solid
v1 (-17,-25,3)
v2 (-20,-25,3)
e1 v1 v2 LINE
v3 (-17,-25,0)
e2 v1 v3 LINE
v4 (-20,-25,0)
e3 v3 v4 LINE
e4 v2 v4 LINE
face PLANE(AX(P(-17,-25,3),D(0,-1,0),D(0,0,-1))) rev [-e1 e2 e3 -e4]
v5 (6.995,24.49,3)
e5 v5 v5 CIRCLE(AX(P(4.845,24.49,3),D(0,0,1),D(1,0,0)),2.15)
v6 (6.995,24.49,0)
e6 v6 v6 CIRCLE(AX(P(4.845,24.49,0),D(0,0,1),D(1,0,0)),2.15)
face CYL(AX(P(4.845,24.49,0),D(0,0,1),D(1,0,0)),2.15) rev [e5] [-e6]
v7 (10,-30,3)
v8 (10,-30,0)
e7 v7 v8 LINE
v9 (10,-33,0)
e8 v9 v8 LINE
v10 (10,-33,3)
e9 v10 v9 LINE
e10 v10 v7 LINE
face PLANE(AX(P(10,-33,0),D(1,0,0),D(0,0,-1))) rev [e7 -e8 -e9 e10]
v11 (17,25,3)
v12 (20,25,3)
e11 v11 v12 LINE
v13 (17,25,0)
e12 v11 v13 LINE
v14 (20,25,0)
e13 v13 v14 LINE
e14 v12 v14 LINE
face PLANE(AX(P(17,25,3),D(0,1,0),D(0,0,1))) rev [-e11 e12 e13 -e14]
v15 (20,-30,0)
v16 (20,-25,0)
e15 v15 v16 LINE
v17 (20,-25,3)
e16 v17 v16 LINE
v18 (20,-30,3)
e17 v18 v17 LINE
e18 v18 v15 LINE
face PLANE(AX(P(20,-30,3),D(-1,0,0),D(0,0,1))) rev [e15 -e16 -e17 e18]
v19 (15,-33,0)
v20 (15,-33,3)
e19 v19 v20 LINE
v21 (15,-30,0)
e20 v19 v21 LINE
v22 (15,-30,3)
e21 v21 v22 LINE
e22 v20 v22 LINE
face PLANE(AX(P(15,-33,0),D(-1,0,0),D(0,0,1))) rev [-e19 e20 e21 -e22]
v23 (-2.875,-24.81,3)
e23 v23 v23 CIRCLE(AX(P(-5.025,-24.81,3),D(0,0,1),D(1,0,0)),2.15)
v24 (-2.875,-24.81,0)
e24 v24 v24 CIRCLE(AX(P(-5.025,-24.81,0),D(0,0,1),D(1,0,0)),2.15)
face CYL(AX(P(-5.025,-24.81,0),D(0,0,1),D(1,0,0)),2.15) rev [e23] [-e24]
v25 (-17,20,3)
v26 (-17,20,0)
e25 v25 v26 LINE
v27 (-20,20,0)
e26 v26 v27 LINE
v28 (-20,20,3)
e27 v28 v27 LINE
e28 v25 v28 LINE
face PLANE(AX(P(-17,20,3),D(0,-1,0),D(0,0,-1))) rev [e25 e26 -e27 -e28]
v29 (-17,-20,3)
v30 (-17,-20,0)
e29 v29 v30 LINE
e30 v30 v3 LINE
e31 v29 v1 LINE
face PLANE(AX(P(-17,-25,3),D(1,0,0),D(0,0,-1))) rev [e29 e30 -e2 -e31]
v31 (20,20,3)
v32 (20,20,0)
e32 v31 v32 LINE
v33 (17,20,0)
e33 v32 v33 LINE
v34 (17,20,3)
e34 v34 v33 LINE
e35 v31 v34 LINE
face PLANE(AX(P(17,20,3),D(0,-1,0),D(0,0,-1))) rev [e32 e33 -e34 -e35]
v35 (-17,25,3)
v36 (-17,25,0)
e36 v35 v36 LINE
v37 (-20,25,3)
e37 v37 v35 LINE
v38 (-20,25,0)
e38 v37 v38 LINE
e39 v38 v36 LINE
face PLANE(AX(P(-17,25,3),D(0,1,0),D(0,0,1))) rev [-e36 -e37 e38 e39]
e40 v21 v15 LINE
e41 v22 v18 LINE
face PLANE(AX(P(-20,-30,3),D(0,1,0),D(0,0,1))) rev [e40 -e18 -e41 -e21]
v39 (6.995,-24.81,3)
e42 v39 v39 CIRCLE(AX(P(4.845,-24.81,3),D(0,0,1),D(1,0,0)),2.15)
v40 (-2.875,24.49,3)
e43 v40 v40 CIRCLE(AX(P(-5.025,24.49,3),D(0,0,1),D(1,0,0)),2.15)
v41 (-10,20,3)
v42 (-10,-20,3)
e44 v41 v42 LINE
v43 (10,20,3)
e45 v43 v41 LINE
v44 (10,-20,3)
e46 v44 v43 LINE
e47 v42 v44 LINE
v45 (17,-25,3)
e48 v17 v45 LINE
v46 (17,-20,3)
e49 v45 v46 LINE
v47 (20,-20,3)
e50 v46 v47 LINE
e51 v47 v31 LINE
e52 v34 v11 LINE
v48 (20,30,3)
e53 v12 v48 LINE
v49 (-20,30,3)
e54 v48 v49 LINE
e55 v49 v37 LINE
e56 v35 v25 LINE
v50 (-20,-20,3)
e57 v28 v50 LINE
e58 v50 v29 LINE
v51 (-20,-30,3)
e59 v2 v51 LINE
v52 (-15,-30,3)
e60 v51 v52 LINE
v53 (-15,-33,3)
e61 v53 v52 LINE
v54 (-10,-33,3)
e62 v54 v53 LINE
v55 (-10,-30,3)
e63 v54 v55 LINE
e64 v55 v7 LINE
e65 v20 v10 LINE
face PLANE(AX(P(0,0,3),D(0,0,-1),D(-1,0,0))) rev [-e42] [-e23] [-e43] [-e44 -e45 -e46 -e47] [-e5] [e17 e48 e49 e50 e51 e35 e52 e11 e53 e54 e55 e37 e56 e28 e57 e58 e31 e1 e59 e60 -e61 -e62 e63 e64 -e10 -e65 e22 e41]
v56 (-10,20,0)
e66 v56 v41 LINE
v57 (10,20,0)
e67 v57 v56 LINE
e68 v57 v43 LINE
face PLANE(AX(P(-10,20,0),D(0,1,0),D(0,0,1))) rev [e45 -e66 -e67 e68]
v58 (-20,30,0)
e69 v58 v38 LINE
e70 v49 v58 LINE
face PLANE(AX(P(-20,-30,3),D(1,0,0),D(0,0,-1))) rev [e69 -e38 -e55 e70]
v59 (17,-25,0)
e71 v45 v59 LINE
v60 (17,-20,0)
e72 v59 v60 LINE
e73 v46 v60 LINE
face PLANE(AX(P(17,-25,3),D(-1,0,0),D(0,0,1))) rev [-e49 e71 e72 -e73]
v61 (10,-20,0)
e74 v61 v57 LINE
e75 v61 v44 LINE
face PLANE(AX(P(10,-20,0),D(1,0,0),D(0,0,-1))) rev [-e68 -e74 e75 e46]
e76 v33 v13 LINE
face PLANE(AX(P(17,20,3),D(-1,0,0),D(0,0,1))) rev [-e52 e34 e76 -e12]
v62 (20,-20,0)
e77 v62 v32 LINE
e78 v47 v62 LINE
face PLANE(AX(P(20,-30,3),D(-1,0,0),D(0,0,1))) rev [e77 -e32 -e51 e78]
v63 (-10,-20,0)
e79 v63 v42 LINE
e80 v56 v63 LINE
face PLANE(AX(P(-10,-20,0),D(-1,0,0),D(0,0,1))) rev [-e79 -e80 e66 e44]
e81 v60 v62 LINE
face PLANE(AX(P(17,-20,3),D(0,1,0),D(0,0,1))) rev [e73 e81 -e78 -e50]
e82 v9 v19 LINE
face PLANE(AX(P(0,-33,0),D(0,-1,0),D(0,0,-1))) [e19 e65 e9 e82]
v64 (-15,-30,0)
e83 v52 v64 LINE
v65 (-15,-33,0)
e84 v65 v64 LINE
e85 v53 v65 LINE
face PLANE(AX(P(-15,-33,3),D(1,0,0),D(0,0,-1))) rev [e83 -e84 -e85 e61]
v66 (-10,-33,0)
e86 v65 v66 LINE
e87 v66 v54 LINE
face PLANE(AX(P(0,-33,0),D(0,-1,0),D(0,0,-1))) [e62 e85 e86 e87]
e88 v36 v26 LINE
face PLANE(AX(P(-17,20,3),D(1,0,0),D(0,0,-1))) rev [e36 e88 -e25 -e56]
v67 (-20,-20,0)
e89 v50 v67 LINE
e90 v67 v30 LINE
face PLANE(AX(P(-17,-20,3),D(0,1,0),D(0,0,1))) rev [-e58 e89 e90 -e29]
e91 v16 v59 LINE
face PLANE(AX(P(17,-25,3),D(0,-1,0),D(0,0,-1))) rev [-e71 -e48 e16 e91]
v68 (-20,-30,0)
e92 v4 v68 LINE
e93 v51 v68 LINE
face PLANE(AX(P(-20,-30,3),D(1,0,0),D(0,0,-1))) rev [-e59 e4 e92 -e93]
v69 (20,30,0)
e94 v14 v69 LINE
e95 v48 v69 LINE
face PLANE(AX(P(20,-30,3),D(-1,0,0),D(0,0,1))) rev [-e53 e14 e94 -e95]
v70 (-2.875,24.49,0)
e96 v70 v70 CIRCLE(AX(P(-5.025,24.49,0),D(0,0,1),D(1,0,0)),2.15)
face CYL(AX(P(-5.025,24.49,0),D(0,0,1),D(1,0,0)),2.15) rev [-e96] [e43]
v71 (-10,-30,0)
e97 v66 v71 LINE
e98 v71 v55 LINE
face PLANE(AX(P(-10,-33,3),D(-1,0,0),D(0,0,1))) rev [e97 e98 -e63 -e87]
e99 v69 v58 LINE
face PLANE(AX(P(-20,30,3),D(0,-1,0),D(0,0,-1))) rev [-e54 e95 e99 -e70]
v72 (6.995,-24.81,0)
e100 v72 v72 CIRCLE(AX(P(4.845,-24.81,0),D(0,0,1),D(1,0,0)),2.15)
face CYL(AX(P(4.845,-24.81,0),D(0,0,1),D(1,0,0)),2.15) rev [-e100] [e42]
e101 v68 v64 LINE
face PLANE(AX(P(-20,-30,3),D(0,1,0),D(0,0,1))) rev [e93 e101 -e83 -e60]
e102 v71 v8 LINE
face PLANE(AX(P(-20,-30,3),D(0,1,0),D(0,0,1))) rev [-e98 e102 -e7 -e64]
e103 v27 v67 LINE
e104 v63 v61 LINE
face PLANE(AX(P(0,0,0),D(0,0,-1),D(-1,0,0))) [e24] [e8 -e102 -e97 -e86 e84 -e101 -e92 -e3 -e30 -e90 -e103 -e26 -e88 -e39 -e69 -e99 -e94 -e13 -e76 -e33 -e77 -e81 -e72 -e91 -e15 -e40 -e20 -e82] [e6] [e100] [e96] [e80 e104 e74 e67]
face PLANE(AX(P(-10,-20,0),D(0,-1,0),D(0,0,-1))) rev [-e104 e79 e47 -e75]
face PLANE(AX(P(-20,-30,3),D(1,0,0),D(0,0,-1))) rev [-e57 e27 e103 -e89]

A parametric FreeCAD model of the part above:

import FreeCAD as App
import Part
import Sketcher

V = App.Vector
Q = App.Units.Quantity

doc = App.newDocument("Part")
body = doc.addObject("PartDesign::Body", "Body")

# Sketch on XY plane
sketch1 = body.newObject("Sketcher::SketchObject", "Sketch")
sketch1.AttachmentSupport = (doc.getObject("XY_Plane"), [""])
sketch1.MapMode = "FlatFace"
sketch1.addGeometry([
    Part.LineSegment(V(-20, 30, 0), V(-20, -30, 0)),
    Part.LineSegment(V(-20, -30, 0), V(20, -30, 0)),
    Part.LineSegment(V(20, -30, 0), V(20, 30, 0)),
    Part.LineSegment(V(20, 30, 0), V(-20, 30, 0)),
], False)
sketch1.addConstraint([
    Sketcher.Constraint("Coincident", 0, 2, 1, 1),
    Sketcher.Constraint("Coincident", 1, 2, 2, 1),
    Sketcher.Constraint("Coincident", 2, 2, 3, 1),
    Sketcher.Constraint("Coincident", 3, 2, 0, 1),
    Sketcher.Constraint("Vertical", 0),
    Sketcher.Constraint("Horizontal", 1),
    Sketcher.Constraint("Vertical", 2),
    Sketcher.Constraint("Horizontal", 3),
    Sketcher.Constraint("Symmetric", 0, 2, 2, 2, -1, 1),
    Sketcher.Constraint("DistanceX", 1, 1, 1, 2, Q("40 mm")),
    Sketcher.Constraint("DistanceY", 0, 2, 0, 1, Q("60 mm")),
])
pad1 = body.newObject("PartDesign::Pad", "Pad")
pad1.Profile = sketch1
pad1.Length = 3

# Sketch on XY plane
sketch2 = body.newObject("Sketcher::SketchObject", "Sketch001")
sketch2.AttachmentSupport = (doc.getObject("XY_Plane"), [""])
sketch2.MapMode = "FlatFace"
sketch2.AttachmentOffset = App.Placement(V(0, 0, 3), App.Rotation())
sketch2.addGeometry([
    Part.Circle(V(4.8, 24.5, 0), V(0, 0, 1), 2.1),  # 0
    Part.Circle(V(-5, 24.5, 0), V(0, 0, 1), 2.1),  # 1
    Part.Circle(V(-5, -24.8, 0), V(0, 0, 1), 2.1),  # 2
    Part.Circle(V(4.8, -24.8, 0), V(0, 0, 1), 2.1),  # 3
    Part.LineSegment(V(-10, 20, 0), V(-10, -20, 0)),  # 4
    Part.LineSegment(V(-10, -20, 0), V(10, -20, 0)),  # 5
    Part.LineSegment(V(10, -20, 0), V(10, 20, 0)),  # 6
    Part.LineSegment(V(10, 20, 0), V(-10, 20, 0)),  # 7
], False)
sketch2.addConstraint([
    Sketcher.Constraint("Coincident", 4, 2, 5, 1),
    Sketcher.Constraint("Coincident", 5, 2, 6, 1),
    Sketcher.Constraint("Coincident", 6, 2, 7, 1),
    Sketcher.Constraint("Coincident", 7, 2, 4, 1),
    Sketcher.Constraint("Vertical", 4),
    Sketcher.Constraint("Horizontal", 5),
    Sketcher.Constraint("Vertical", 6),
    Sketcher.Constraint("Horizontal", 7),
    Sketcher.Constraint("Equal", 0, 1),
    Sketcher.Constraint("Equal", 1, 2),
    Sketcher.Constraint("Equal", 2, 3),
    Sketcher.Constraint("Symmetric", 4, 2, 6, 2, -1, 1),
    Sketcher.Constraint("Horizontal", 0, 3, 1, 3),
    Sketcher.Constraint("Horizontal", 2, 3, 3, 3),
    Sketcher.Constraint("Vertical", 1, 3, 2, 3),
    Sketcher.Constraint("Vertical", 0, 3, 3, 3),
    Sketcher.Constraint("Diameter", 0, Q("4.3 mm")),
    Sketcher.Constraint("DistanceX", 5, 1, 5, 2, Q("20 mm")),
    Sketcher.Constraint("DistanceY", 4, 2, 4, 1, Q("40 mm")),
    Sketcher.Constraint("DistanceY", 2, 3, 1, 3, Q("49.3 mm")),
    Sketcher.Constraint("DistanceY", -1, 1, 0, 3, Q("24.49 mm")),
    Sketcher.Constraint("DistanceX", 1, 3, 0, 3, Q("9.87 mm")),
    Sketcher.Constraint("DistanceX", -1, 1, 0, 3, Q("4.845 mm")),
])
pocket1 = body.newObject("PartDesign::Pocket", "Pocket")
pocket1.Profile = sketch2
pocket1.Length = 3

# Sketch on XZ plane
sketch3 = body.newObject("Sketcher::SketchObject", "Sketch002")
sketch3.AttachmentSupport = (doc.getObject("XZ_Plane"), [""])
sketch3.MapMode = "FlatFace"
sketch3.AttachmentOffset = App.Placement(V(0, 0, 30), App.Rotation())
sketch3.addGeometry([
    Part.LineSegment(V(10, 3, 0), V(10, 0, 0)),  # 0
    Part.LineSegment(V(10, 0, 0), V(15, 0, 0)),  # 1
    Part.LineSegment(V(15, 0, 0), V(15, 3, 0)),  # 2
    Part.LineSegment(V(15, 3, 0), V(10, 3, 0)),  # 3
    Part.LineSegment(V(-15, 3, 0), V(-15, 0, 0)),  # 4
    Part.LineSegment(V(-15, 0, 0), V(-10, 0, 0)),  # 5
    Part.LineSegment(V(-10, 0, 0), V(-10, 3, 0)),  # 6
    Part.LineSegment(V(-10, 3, 0), V(-15, 3, 0)),  # 7
], False)
sketch3.addConstraint([
    Sketcher.Constraint("Coincident", 0, 2, 1, 1),
    Sketcher.Constraint("Coincident", 1, 2, 2, 1),
    Sketcher.Constraint("Coincident", 2, 2, 3, 1),
    Sketcher.Constraint("Coincident", 3, 2, 0, 1),
    Sketcher.Constraint("Coincident", 4, 2, 5, 1),
    Sketcher.Constraint("Coincident", 5, 2, 6, 1),
    Sketcher.Constraint("Coincident", 6, 2, 7, 1),
    Sketcher.Constraint("Coincident", 7, 2, 4, 1),
    Sketcher.Constraint("Vertical", 0),
    Sketcher.Constraint("Horizontal", 1),
    Sketcher.Constraint("Vertical", 2),
    Sketcher.Constraint("Horizontal", 3),
    Sketcher.Constraint("Vertical", 4),
    Sketcher.Constraint("Horizontal", 5),
    Sketcher.Constraint("Vertical", 6),
    Sketcher.Constraint("Horizontal", 7),
    Sketcher.Constraint("Symmetric", 1, 2, 4, 2, -1, 1),
    Sketcher.Constraint("Symmetric", 0, 2, 5, 2, -2),
    Sketcher.Constraint("Horizontal", 3, 2, 6, 2),
    Sketcher.Constraint("DistanceX", 1, 1, 1, 2, Q("5 mm")),
    Sketcher.Constraint("DistanceY", 0, 2, 0, 1, Q("3 mm")),
    Sketcher.Constraint("DistanceX", -1, 1, 0, 2, Q("10 mm")),
])
pad2 = body.newObject("PartDesign::Pad", "Pad001")
pad2.Profile = sketch3
pad2.Length = 3

# Sketch on XY plane
sketch4 = body.newObject("Sketcher::SketchObject", "Sketch003")
sketch4.AttachmentSupport = (doc.getObject("XY_Plane"), [""])
sketch4.MapMode = "FlatFace"
sketch4.addGeometry([
    Part.LineSegment(V(20, -20, 0), V(20, -25, 0)),  # 0
    Part.LineSegment(V(20, -25, 0), V(17, -25, 0)),  # 1
    Part.LineSegment(V(17, -25, 0), V(17, -20, 0)),  # 2
    Part.LineSegment(V(17, -20, 0), V(20, -20, 0)),  # 3
    Part.LineSegment(V(20, 25, 0), V(20, 20, 0)),  # 4
    Part.LineSegment(V(20, 20, 0), V(17, 20, 0)),  # 5
    Part.LineSegment(V(17, 20, 0), V(17, 25, 0)),  # 6
    Part.LineSegment(V(17, 25, 0), V(20, 25, 0)),  # 7
    Part.LineSegment(V(-17, 25, 0), V(-17, 20, 0)),  # 8
    Part.LineSegment(V(-17, 20, 0), V(-20, 20, 0)),  # 9
    Part.LineSegment(V(-20, 20, 0), V(-20, 25, 0)),  # 10
    Part.LineSegment(V(-20, 25, 0), V(-17, 25, 0)),  # 11
    Part.LineSegment(V(-17, -20, 0), V(-17, -25, 0)),  # 12
    Part.LineSegment(V(-17, -25, 0), V(-20, -25, 0)),  # 13
    Part.LineSegment(V(-20, -25, 0), V(-20, -20, 0)),  # 14
    Part.LineSegment(V(-20, -20, 0), V(-17, -20, 0)),  # 15
], False)
sketch4.addConstraint([
    Sketcher.Constraint("Coincident", 0, 2, 1, 1),
    Sketcher.Constraint("Coincident", 1, 2, 2, 1),
    Sketcher.Constraint("Coincident", 2, 2, 3, 1),
    Sketcher.Constraint("Coincident", 3, 2, 0, 1),
    Sketcher.Constraint("Coincident", 4, 2, 5, 1),
    Sketcher.Constraint("Coincident", 5, 2, 6, 1),
    Sketcher.Constraint("Coincident", 6, 2, 7, 1),
    Sketcher.Constraint("Coincident", 7, 2, 4, 1),
    Sketcher.Constraint("Coincident", 8, 2, 9, 1),
    Sketcher.Constraint("Coincident", 9, 2, 10, 1),
    Sketcher.Constraint("Coincident", 10, 2, 11, 1),
    Sketcher.Constraint("Coincident", 11, 2, 8, 1),
    Sketcher.Constraint("Coincident", 12, 2, 13, 1),
    Sketcher.Constraint("Coincident", 13, 2, 14, 1),
    Sketcher.Constraint("Coincident", 14, 2, 15, 1),
    Sketcher.Constraint("Coincident", 15, 2, 12, 1),
    Sketcher.Constraint("Vertical", 0),
    Sketcher.Constraint("Horizontal", 1),
    Sketcher.Constraint("Vertical", 2),
    Sketcher.Constraint("Horizontal", 3),
    Sketcher.Constraint("Vertical", 4),
    Sketcher.Constraint("Horizontal", 5),
    Sketcher.Constraint("Vertical", 6),
    Sketcher.Constraint("Horizontal", 7),
    Sketcher.Constraint("Vertical", 8),
    Sketcher.Constraint("Horizontal", 9),
    Sketcher.Constraint("Vertical", 10),
    Sketcher.Constraint("Horizontal", 11),
    Sketcher.Constraint("Vertical", 12),
    Sketcher.Constraint("Horizontal", 13),
    Sketcher.Constraint("Vertical", 14),
    Sketcher.Constraint("Horizontal", 15),
    Sketcher.Constraint("Symmetric", 2, 2, 8, 2, -1, 1),
    Sketcher.Constraint("Symmetric", 0, 2, 10, 2, -1, 1),
    Sketcher.Constraint("Symmetric", 6, 2, 12, 2, -1, 1),
    Sketcher.Constraint("Symmetric", 4, 2, 14, 2, -1, 1),
    Sketcher.Constraint("Symmetric", 5, 2, 8, 2, -2),
    Sketcher.Constraint("Symmetric", 7, 2, 10, 2, -2),
    Sketcher.Constraint("DistanceX", 1, 2, 1, 1, Q("3 mm")),
    Sketcher.Constraint("DistanceY", 0, 2, 0, 1, Q("5 mm")),
    Sketcher.Constraint("DistanceX", -1, 1, 0, 2, Q("20 mm")),
    Sketcher.Constraint("DistanceY", 0, 2, -1, 1, Q("25 mm")),
])
pocket2 = body.newObject("PartDesign::Pocket", "Pocket001")
pocket2.Profile = sketch4
pocket2.Length = 3
pocket2.Reversed = True

doc.recompute()
